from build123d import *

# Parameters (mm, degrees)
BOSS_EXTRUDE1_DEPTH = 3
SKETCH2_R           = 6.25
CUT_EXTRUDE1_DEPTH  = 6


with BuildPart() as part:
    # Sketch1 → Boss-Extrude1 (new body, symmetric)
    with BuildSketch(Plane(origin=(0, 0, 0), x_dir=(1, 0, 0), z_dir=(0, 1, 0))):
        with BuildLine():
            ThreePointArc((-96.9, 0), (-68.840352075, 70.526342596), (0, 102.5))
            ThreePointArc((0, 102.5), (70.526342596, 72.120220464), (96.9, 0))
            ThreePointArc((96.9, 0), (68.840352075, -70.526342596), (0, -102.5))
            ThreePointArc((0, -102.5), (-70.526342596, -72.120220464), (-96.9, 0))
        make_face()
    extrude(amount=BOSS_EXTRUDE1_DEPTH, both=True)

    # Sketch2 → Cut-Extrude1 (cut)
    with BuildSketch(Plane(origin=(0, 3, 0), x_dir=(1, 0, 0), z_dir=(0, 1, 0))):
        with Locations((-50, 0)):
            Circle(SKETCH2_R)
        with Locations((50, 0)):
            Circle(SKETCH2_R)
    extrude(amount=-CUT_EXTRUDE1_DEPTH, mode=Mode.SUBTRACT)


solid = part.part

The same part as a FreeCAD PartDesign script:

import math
import FreeCAD as App
import Part
import Sketcher

V = App.Vector

doc = App.newDocument("Part")
body = doc.addObject("PartDesign::Body", "Body")

# Sketch on XZ plane
sketch1 = doc.addObject("Sketcher::SketchObject", "Sketch")
body.addObject(sketch1)
sketch1.AttachmentSupport = (doc.XZ_Plane, [""])
sketch1.MapMode = "FlatFace"
sketch1.addGeometry([
    Part.ArcOfCircle(Part.Circle(V(6, 0, 0), V(0, 0, 1), 103), math.radians(-180), math.radians(-93)),
    Part.ArcOfCircle(Part.Circle(V(0, 5, 0), V(0, 0, 1), 97), math.radians(90), math.radians(183)),
    Part.ArcOfCircle(Part.Circle(V(-6, 0, 0), V(0, 0, 1), 103), math.radians(0), math.radians(87)),
    Part.ArcOfCircle(Part.Circle(V(0, -5, 0), V(0, 0, 1), 97), math.radians(-90), math.radians(3)),
], False)
sketch1.addConstraint([
    Sketcher.Constraint("Coincident", 0, 1, 1, 2),
    Sketcher.Constraint("Coincident", 1, 1, 2, 2),
    Sketcher.Constraint("Coincident", 2, 1, 3, 2),
    Sketcher.Constraint("Coincident", 3, 1, 0, 2),
    Sketcher.Constraint("Equal", 0, 2),
    Sketcher.Constraint("Equal", 1, 3),
    Sketcher.Constraint("Symmetric", 0, 3, 2, 3, -1, 1),
    Sketcher.Constraint("Symmetric", 1, 3, 3, 3, -1, 1),
    Sketcher.Constraint("PointOnObject", 0, 3, -1),
    Sketcher.Constraint("PointOnObject", 1, 3, -2),
    Sketcher.Constraint("PointOnObject", 0, 1, -1),
    Sketcher.Constraint("PointOnObject", 1, 1, -2),
    Sketcher.Constraint("DistanceX", 0, 1, -1, 1, 96.9),
    Sketcher.Constraint("DistanceY", -1, 1, 1, 1, 102.5),
])
pad1 = doc.addObject("PartDesign::Pad", "Pad")
body.addObject(pad1)
pad1.Profile = sketch1
pad1.Length = 6
pad1.Midplane = True

# Sketch on XZ plane
sketch2 = doc.addObject("Sketcher::SketchObject", "Sketch001")
body.addObject(sketch2)
sketch2.AttachmentSupport = (doc.XZ_Plane, [""])
sketch2.MapMode = "FlatFace"
sketch2.AttachmentOffset = App.Placement(V(0, 0, -3), App.Rotation())
sketch2.addGeometry([
    Part.Circle(V(-50, 0, 0), V(0, 0, 1), 6),
    Part.Circle(V(50, 0, 0), V(0, 0, 1), 6),
], False)
sketch2.addConstraint([
    Sketcher.Constraint("Equal", 0, 1),
    Sketcher.Constraint("Symmetric", 0, 3, 1, 3, -1, 1),
    Sketcher.Constraint("PointOnObject", 0, 3, -1),
    Sketcher.Constraint("Diameter", 0, 12.5),
    Sketcher.Constraint("DistanceX", 0, 3, -1, 1, 50.0),
])
pocket1 = doc.addObject("PartDesign::Pocket", "Pocket")
body.addObject(pocket1)
pocket1.Profile = sketch2
pocket1.Length = 6
pocket1.Reversed = True

doc.recompute()
